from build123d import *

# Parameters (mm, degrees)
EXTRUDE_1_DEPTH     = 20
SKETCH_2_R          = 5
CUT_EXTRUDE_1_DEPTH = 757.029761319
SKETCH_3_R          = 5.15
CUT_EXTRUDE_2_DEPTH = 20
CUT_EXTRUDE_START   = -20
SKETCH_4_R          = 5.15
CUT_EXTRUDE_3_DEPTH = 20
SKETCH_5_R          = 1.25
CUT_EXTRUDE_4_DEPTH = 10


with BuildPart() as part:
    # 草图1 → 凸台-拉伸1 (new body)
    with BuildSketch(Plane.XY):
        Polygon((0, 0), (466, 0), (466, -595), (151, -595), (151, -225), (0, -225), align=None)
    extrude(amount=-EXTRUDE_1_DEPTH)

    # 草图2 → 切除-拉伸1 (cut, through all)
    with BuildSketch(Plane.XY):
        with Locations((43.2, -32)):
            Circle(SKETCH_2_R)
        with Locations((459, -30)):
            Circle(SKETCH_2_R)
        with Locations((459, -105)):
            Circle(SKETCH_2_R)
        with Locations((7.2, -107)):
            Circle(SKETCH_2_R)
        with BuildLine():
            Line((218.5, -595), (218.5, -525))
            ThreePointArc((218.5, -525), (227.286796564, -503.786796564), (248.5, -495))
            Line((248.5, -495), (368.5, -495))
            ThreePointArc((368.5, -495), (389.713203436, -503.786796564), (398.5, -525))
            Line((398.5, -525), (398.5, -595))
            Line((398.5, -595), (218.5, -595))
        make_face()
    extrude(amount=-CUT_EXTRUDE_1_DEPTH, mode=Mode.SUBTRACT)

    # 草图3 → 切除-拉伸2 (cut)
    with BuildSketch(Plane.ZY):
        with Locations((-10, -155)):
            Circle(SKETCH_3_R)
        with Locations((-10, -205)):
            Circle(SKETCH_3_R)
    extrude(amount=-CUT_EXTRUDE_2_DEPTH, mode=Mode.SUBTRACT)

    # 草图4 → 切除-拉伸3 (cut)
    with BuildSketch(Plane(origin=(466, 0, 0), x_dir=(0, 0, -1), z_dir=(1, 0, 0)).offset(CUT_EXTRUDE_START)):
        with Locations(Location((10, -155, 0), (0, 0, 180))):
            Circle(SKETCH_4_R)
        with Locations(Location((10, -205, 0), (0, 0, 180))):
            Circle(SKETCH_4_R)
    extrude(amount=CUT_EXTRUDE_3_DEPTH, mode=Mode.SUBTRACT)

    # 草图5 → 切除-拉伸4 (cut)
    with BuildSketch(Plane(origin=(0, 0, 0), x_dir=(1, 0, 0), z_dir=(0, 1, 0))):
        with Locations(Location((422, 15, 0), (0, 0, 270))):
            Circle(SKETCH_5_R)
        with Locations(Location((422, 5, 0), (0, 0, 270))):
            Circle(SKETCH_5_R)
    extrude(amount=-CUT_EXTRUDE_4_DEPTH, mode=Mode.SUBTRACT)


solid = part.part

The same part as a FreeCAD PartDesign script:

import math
import FreeCAD as App
import Part
import Sketcher
from FreeCAD import Vector
Q = App.Units.Quantity

doc = App.newDocument("Part")
body = doc.addObject("PartDesign::Body", "Body")

# Sketch on XY plane
sketch1 = doc.addObject("Sketcher::SketchObject", "Sketch")
body.addObject(sketch1)
sketch1.AttachmentSupport = (doc.XY_Plane, [""])
sketch1.MapMode = "FlatFace"
sketch1.addGeometry(Part.LineSegment(Vector(466, 0, 0), Vector(0, 0, 0)), False)
sketch1.addGeometry(Part.LineSegment(Vector(0, 0, 0), Vector(0, -225, 0)), False)
sketch1.addGeometry(Part.LineSegment(Vector(0, -225, 0), Vector(151, -225, 0)), False)
sketch1.addGeometry(Part.LineSegment(Vector(151, -225, 0), Vector(151, -595, 0)), False)
sketch1.addGeometry(Part.LineSegment(Vector(151, -595, 0), Vector(466, -595, 0)), False)
sketch1.addGeometry(Part.LineSegment(Vector(466, -595, 0), Vector(466, 0, 0)), False)
sketch1.addConstraint(Sketcher.Constraint("Coincident", 0, 2, 1, 1))
sketch1.addConstraint(Sketcher.Constraint("Coincident", 1, 2, 2, 1))
sketch1.addConstraint(Sketcher.Constraint("Coincident", 2, 2, 3, 1))
sketch1.addConstraint(Sketcher.Constraint("Coincident", 3, 2, 4, 1))
sketch1.addConstraint(Sketcher.Constraint("Coincident", 4, 2, 5, 1))
sketch1.addConstraint(Sketcher.Constraint("Coincident", 5, 2, 0, 1))
sketch1.addConstraint(Sketcher.Constraint("Horizontal", 0))
sketch1.addConstraint(Sketcher.Constraint("Vertical", 1))
sketch1.addConstraint(Sketcher.Constraint("Horizontal", 2))
sketch1.addConstraint(Sketcher.Constraint("Vertical", 3))
sketch1.addConstraint(Sketcher.Constraint("Horizontal", 4))
sketch1.addConstraint(Sketcher.Constraint("Vertical", 5))
sketch1.addConstraint(Sketcher.Constraint("Coincident", 0, 2, -1, 1))
sketch1.addConstraint(Sketcher.Constraint("DistanceX", 0, 2, 0, 1, Q("466 mm")))
sketch1.addConstraint(Sketcher.Constraint("DistanceX", 2, 1, 2, 2, Q("151 mm")))
sketch1.addConstraint(Sketcher.Constraint("DistanceY", 1, 2, 1, 1, Q("225 mm")))
sketch1.addConstraint(Sketcher.Constraint("DistanceY", 3, 2, 3, 1, Q("370 mm")))
pad1 = doc.addObject("PartDesign::Pad", "Pad")
body.addObject(pad1)
pad1.Profile = sketch1
pad1.Length = 20
pad1.Reversed = True

# Sketch on XY plane
sketch2 = doc.addObject("Sketcher::SketchObject", "Sketch001")
body.addObject(sketch2)
sketch2.AttachmentSupport = (doc.XY_Plane, [""])
sketch2.MapMode = "FlatFace"
sketch2.addGeometry(Part.Circle(Vector(43, -32, 0), Vector(0, 0, 1), 5), False)
sketch2.addGeometry(Part.Circle(Vector(459, -30, 0), Vector(0, 0, 1), 5), False)
sketch2.addGeometry(Part.Circle(Vector(459, -105, 0), Vector(0, 0, 1), 5), False)
sketch2.addGeometry(Part.Circle(Vector(7, -107, 0), Vector(0, 0, 1), 5), False)
sketch2.addGeometry(Part.LineSegment(Vector(218, -525, 0), Vector(218, -595, 0)), False)
sketch2.addGeometry(Part.LineSegment(Vector(218, -595, 0), Vector(398, -595, 0)), False)
sketch2.addGeometry(Part.LineSegment(Vector(398, -595, 0), Vector(398, -525, 0)), False)
sketch2.addGeometry(Part.ArcOfCircle(Part.Circle(Vector(369, -525, 0), Vector(0, 0, 1), 30), math.radians(0), math.radians(90)), False)
sketch2.addGeometry(Part.LineSegment(Vector(368, -495, 0), Vector(248, -495, 0)), False)
sketch2.addGeometry(Part.ArcOfCircle(Part.Circle(Vector(248, -525, 0), Vector(0, 0, 1), 30), math.radians(90), math.radians(180)), False)
sketch2.addConstraint(Sketcher.Constraint("Coincident", 4, 2, 5, 1))
sketch2.addConstraint(Sketcher.Constraint("Coincident", 5, 2, 6, 1))
sketch2.addConstraint(Sketcher.Constraint("Tangent", 6, 2, 7, 1))
sketch2.addConstraint(Sketcher.Constraint("Tangent", 7, 2, 8, 1))
sketch2.addConstraint(Sketcher.Constraint("Tangent", 8, 2, 9, 1))
sketch2.addConstraint(Sketcher.Constraint("Tangent", 9, 2, 4, 1))
sketch2.addConstraint(Sketcher.Constraint("Vertical", 4))
sketch2.addConstraint(Sketcher.Constraint("Horizontal", 5))
sketch2.addConstraint(Sketcher.Constraint("Vertical", 6))
sketch2.addConstraint(Sketcher.Constraint("Horizontal", 8))
sketch2.addConstraint(Sketcher.Constraint("Equal", 0, 1))
sketch2.addConstraint(Sketcher.Constraint("Equal", 1, 2))
sketch2.addConstraint(Sketcher.Constraint("Equal", 2, 3))
sketch2.addConstraint(Sketcher.Constraint("Equal", 7, 9))
sketch2.addConstraint(Sketcher.Constraint("Vertical", 1, 3, 2, 3))
sketch2.addConstraint(Sketcher.Constraint("Diameter", 0, Q("10 mm")))
sketch2.addConstraint(Sketcher.Constraint("Radius", 7, Q("30 mm")))
sketch2.addConstraint(Sketcher.Constraint("DistanceX", 5, 1, 5, 2, Q("180 mm")))
sketch2.addConstraint(Sketcher.Constraint("DistanceY", 4, 2, 4, 1, Q("70 mm")))
sketch2.addConstraint(Sketcher.Constraint("DistanceY", 0, 3, -1, 1, Q("32 mm")))
sketch2.addConstraint(Sketcher.Constraint("DistanceX", -1, 1, 1, 3, Q("459 mm")))
sketch2.addConstraint(Sketcher.Constraint("DistanceY", 1, 3, -1, 1, Q("30 mm")))
sketch2.addConstraint(Sketcher.Constraint("DistanceY", 2, 3, -1, 1, Q("105 mm")))
sketch2.addConstraint(Sketcher.Constraint("DistanceY", 3, 3, -1, 1, Q("107 mm")))
sketch2.addConstraint(Sketcher.Constraint("DistanceY", 7, 3, -1, 1, Q("525 mm")))
sketch2.addConstraint(Sketcher.Constraint("DistanceX", 3, 3, 0, 3, Q("36 mm")))
sketch2.addConstraint(Sketcher.Constraint("DistanceX", -1, 1, 0, 3, Q("43.2 mm")))
sketch2.addConstraint(Sketcher.Constraint("DistanceX", -1, 1, 7, 3, Q("368.5 mm")))
pocket1 = doc.addObject("PartDesign::Pocket", "Pocket")
body.addObject(pocket1)
pocket1.Profile = sketch2
pocket1.Type = "ThroughAll"

# Sketch on YZ plane
sketch3 = doc.addObject("Sketcher::SketchObject", "Sketch002")
body.addObject(sketch3)
sketch3.AttachmentSupport = (doc.YZ_Plane, [""])
sketch3.MapMode = "FlatFace"
sketch3.addGeometry(Part.Circle(Vector(-155, -10, 0), Vector(0, 0, 1), 5), False)
sketch3.addGeometry(Part.Circle(Vector(-205, -10, 0), Vector(0, 0, 1), 5), False)
sketch3.addConstraint(Sketcher.Constraint("Equal", 0, 1))
sketch3.addConstraint(Sketcher.Constraint("Horizontal", 0, 3, 1, 3))
sketch3.addConstraint(Sketcher.Constraint("Diameter", 0, Q("10.3 mm")))
sketch3.addConstraint(Sketcher.Constraint("DistanceX", 0, 3, -1, 1, Q("155 mm")))
sketch3.addConstraint(Sketcher.Constraint("DistanceY", 0, 3, -1, 1, Q("10 mm")))
sketch3.addConstraint(Sketcher.Constraint("DistanceX", 1, 3, -1, 1, Q("205 mm")))
pocket2 = doc.addObject("PartDesign::Pocket", "Pocket001")
body.addObject(pocket2)
pocket2.Profile = sketch3
pocket2.Length = 20
pocket2.Reversed = True

# Sketch on YZ plane
sketch4 = doc.addObject("Sketcher::SketchObject", "Sketch003")
body.addObject(sketch4)
sketch4.AttachmentSupport = (doc.YZ_Plane, [""])
sketch4.MapMode = "FlatFace"
sketch4.AttachmentOffset = App.Placement(Vector(0, 0, 446), App.Rotation())
sketch4.addGeometry(Part.Circle(Vector(-155, -10, 0), Vector(0, 0, 1), 5), False)
sketch4.addGeometry(Part.Circle(Vector(-205, -10, 0), Vector(0, 0, 1), 5), False)
sketch4.addConstraint(Sketcher.Constraint("Equal", 0, 1))
sketch4.addConstraint(Sketcher.Constraint("Horizontal", 0, 3, 1, 3))
sketch4.addConstraint(Sketcher.Constraint("Diameter", 0, Q("10.3 mm")))
sketch4.addConstraint(Sketcher.Constraint("DistanceX", 0, 3, -1, 1, Q("155 mm")))
sketch4.addConstraint(Sketcher.Constraint("DistanceY", 0, 3, -1, 1, Q("10 mm")))
sketch4.addConstraint(Sketcher.Constraint("DistanceX", 1, 3, -1, 1, Q("205 mm")))
pocket3 = doc.addObject("PartDesign::Pocket", "Pocket002")
body.addObject(pocket3)
pocket3.Profile = sketch4
pocket3.Length = 20
pocket3.Reversed = True

# Sketch on XZ plane
sketch5 = doc.addObject("Sketcher::SketchObject", "Sketch004")
body.addObject(sketch5)
sketch5.AttachmentSupport = (doc.XZ_Plane, [""])
sketch5.MapMode = "FlatFace"
sketch5.addGeometry(Part.Circle(Vector(422, -15, 0), Vector(0, 0, 1), 1.2), False)
sketch5.addGeometry(Part.Circle(Vector(422, -5, 0), Vector(0, 0, 1), 1.2), False)
sketch5.addConstraint(Sketcher.Constraint("Equal", 0, 1))
sketch5.addConstraint(Sketcher.Constraint("Vertical", 0, 3, 1, 3))
sketch5.addConstraint(Sketcher.Constraint("Diameter", 0, Q("2.5 mm")))
sketch5.addConstraint(Sketcher.Constraint("DistanceX", -1, 1, 0, 3, Q("422 mm")))
sketch5.addConstraint(Sketcher.Constraint("DistanceY", 0, 3, -1, 1, Q("15 mm")))
sketch5.addConstraint(Sketcher.Constraint("DistanceY", 1, 3, -1, 1, Q("5 mm")))
pocket4 = doc.addObject("PartDesign::Pocket", "Pocket003")
body.addObject(pocket4)
pocket4.Profile = sketch5
pocket4.Length = 10
pocket4.Reversed = True

doc.recompute()
